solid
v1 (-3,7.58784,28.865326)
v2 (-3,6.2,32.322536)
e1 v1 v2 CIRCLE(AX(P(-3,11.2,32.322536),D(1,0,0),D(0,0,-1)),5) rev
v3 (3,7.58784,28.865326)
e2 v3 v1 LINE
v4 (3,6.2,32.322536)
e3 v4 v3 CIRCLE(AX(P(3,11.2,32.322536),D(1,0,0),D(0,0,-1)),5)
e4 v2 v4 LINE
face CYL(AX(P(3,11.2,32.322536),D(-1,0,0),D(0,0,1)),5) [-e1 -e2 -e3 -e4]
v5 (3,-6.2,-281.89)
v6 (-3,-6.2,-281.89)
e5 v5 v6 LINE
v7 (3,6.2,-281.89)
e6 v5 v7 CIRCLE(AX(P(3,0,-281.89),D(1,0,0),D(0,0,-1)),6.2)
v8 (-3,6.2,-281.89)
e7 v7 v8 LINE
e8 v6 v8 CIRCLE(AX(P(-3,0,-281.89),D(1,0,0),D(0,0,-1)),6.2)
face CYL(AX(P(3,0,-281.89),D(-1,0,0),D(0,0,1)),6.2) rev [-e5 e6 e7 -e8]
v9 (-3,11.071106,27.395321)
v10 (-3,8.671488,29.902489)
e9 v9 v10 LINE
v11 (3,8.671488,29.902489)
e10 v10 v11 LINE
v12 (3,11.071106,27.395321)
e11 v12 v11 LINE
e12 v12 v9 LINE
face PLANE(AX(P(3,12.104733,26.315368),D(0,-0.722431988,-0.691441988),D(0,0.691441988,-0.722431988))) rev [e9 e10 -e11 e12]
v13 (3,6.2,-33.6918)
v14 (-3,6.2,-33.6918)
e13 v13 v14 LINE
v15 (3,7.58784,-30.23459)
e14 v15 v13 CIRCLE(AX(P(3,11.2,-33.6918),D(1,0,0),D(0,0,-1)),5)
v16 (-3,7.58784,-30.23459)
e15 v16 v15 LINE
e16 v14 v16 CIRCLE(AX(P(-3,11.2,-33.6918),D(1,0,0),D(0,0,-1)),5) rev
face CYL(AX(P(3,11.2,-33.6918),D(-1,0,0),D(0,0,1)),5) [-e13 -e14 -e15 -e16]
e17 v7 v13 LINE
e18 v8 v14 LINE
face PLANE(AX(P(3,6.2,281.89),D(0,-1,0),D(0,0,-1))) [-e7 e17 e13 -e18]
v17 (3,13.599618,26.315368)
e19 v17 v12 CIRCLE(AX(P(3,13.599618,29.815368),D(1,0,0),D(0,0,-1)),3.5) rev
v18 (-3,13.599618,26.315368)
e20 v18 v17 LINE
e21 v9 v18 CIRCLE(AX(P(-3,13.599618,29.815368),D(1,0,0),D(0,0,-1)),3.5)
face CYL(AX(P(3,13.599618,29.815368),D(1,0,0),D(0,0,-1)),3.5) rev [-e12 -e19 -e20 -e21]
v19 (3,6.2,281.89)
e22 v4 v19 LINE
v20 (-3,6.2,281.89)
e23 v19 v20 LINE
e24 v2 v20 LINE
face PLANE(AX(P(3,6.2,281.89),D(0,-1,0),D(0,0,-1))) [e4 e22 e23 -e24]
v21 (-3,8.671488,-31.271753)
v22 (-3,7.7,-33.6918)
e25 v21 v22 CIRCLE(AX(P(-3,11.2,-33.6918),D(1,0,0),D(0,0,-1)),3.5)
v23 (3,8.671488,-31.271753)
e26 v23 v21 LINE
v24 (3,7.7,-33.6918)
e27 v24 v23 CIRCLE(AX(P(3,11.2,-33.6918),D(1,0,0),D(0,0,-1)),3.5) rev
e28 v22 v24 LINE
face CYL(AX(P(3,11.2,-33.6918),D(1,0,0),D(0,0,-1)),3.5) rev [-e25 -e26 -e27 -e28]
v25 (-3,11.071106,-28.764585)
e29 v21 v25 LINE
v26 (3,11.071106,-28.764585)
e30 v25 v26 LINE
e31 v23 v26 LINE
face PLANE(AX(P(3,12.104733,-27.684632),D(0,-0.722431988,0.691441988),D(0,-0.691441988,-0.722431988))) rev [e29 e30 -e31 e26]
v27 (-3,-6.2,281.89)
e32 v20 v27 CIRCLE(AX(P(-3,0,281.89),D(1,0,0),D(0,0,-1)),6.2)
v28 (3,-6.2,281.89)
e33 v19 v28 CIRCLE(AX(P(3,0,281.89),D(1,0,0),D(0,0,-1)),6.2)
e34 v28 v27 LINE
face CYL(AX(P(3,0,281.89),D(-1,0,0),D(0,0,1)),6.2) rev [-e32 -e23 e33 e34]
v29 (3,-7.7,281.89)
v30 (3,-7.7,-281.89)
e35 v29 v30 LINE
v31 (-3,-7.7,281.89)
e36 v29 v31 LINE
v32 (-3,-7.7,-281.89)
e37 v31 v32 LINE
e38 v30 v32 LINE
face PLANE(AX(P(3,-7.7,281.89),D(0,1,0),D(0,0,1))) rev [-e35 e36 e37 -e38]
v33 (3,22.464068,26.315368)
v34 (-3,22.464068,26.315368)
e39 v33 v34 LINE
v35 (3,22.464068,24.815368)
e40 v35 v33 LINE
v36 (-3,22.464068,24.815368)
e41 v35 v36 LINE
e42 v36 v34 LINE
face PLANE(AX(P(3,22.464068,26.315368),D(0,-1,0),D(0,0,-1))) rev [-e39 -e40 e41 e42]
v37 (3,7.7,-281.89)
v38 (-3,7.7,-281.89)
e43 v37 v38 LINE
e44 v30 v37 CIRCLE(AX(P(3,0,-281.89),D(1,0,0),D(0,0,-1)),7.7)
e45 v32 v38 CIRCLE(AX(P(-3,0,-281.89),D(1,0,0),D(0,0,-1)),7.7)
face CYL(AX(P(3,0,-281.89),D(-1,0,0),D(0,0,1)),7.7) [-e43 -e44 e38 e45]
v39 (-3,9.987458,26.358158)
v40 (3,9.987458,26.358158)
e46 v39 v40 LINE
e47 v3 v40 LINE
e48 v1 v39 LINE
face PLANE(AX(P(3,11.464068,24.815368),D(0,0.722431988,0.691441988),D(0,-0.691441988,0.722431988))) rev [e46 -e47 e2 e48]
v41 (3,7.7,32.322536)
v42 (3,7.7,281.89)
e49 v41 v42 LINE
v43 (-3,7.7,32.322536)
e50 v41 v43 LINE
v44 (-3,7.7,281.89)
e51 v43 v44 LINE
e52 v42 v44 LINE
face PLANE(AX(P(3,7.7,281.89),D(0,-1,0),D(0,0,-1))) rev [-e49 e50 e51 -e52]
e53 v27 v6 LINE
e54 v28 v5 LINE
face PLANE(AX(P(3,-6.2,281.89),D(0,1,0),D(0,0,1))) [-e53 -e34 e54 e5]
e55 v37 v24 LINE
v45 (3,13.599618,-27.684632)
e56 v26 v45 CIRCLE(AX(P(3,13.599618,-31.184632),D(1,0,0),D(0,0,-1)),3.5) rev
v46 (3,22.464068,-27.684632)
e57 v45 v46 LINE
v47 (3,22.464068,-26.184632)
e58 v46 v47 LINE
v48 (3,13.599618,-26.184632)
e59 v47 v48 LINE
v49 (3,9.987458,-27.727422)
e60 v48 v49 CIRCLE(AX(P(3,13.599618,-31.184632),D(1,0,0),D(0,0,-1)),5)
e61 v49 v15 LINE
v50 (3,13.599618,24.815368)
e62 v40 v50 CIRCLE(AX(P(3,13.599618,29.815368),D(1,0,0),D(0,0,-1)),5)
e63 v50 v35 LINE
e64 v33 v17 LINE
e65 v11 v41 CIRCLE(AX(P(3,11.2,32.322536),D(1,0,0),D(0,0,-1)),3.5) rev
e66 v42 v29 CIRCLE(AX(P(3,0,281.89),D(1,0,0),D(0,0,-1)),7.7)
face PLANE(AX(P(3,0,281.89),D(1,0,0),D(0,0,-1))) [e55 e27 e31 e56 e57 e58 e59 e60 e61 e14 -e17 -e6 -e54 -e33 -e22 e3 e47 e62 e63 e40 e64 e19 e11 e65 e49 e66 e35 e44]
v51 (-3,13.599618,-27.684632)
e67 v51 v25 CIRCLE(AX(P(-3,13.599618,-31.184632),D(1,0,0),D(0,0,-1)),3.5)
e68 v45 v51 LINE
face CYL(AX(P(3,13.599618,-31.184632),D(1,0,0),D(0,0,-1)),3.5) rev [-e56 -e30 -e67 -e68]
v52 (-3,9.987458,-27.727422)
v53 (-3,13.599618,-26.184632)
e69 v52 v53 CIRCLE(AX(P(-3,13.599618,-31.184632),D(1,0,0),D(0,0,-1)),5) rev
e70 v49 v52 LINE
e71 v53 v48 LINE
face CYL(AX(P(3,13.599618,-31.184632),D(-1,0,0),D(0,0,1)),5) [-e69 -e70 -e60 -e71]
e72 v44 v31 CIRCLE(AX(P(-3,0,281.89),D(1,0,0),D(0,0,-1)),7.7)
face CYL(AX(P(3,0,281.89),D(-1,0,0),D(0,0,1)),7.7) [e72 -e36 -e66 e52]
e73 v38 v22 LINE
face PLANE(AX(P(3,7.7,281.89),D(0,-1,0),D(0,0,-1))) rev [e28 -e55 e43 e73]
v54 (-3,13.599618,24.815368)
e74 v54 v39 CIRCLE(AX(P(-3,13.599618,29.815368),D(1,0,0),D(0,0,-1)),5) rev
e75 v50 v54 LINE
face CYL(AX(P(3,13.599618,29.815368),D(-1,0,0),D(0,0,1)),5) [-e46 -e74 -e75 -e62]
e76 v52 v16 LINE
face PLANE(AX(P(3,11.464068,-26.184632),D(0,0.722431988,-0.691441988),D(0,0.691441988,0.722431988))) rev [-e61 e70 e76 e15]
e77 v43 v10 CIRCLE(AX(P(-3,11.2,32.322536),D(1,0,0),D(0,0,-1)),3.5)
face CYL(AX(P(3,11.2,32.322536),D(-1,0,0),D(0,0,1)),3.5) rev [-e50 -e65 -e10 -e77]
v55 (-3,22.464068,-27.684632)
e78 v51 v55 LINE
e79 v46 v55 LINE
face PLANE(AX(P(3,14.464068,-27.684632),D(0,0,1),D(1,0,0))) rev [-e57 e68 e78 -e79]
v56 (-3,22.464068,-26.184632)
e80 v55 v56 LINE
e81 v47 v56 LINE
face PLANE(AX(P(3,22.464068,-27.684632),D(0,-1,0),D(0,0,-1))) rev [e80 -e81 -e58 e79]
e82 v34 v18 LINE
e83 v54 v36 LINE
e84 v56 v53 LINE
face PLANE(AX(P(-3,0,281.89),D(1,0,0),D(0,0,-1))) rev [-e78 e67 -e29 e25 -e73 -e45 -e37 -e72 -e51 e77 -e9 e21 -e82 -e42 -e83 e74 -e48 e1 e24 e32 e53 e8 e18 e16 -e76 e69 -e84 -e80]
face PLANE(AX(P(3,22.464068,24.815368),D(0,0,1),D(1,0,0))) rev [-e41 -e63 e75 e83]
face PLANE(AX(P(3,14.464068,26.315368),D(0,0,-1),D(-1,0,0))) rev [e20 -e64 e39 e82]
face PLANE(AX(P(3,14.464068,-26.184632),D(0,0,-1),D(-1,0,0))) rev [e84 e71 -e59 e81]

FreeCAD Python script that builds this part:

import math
import FreeCAD as App
import Part
import Sketcher

V = App.Vector


def edges_at(feature, points):
    """Names of the edges that pass closest to the given points."""
    edges = feature.Shape.Edges
    near = lambda p: min(range(len(edges)), key=lambda i: edges[i].distToShape(Part.Vertex(*p))[0])
    return sorted({f"Edge{near(p) + 1}" for p in points})


def add_polygon(sketch, points):
    """Adds a closed chain of lines whose ends are joined by coincident constraints."""
    first, n = sketch.GeometryCount, len(points)
    for a, b in zip(points, points[1:] + points[:1]):
        sketch.addGeometry(Part.LineSegment(App.Vector(*a, 0), App.Vector(*b, 0)), False)
    for i in range(n):
        sketch.addConstraint(Sketcher.Constraint("Coincident", first + i, 2, first + (i + 1) % n, 1))

doc = App.newDocument("Part")
body = doc.addObject("PartDesign::Body", "Body")

# Sketch on YZ plane
sketch1 = body.newObject("Sketcher::SketchObject", "Sketch")
sketch1.AttachmentSupport = (doc.getObject("YZ_Plane"), [""])
sketch1.MapMode = "FlatFace"
sketch1.addGeometry(Part.LineSegment(V(7.7, -281.89, 0), V(7.7, 281.89, 0)), False)
sketch1.addGeometry(Part.ArcOfCircle(Part.Circle(V(0, 281.89, 0), V(0, 0, 1), 7.7), math.radians(0), math.radians(180)), False)
sketch1.addGeometry(Part.LineSegment(V(-7.7, 281.89, 0), V(-7.7, -281.89, 0)), False)
sketch1.addGeometry(Part.ArcOfCircle(Part.Circle(V(0, -281.89, 0), V(0, 0, 1), 7.7), math.radians(180), math.radians(360)), False)
sketch1.addGeometry(Part.LineSegment(V(6.2, 281.89, 0), V(6.2, -281.89, 0)), False)
sketch1.addGeometry(Part.ArcOfCircle(Part.Circle(V(0, -281.89, 0), V(0, 0, 1), 6.2), math.radians(180), math.radians(360)), False)
sketch1.addGeometry(Part.LineSegment(V(-6.2, -281.89, 0), V(-6.2, 281.89, 0)), False)
sketch1.addGeometry(Part.ArcOfCircle(Part.Circle(V(0, 281.89, 0), V(0, 0, 1), 6.2), math.radians(0), math.radians(180)), False)
sketch1.addConstraint(Sketcher.Constraint("Tangent", 0, 2, 1, 1))
sketch1.addConstraint(Sketcher.Constraint("Tangent", 1, 2, 2, 1))
sketch1.addConstraint(Sketcher.Constraint("Tangent", 2, 2, 3, 1))
sketch1.addConstraint(Sketcher.Constraint("Tangent", 3, 2, 0, 1))
sketch1.addConstraint(Sketcher.Constraint("Tangent", 4, 2, 5, 2))
sketch1.addConstraint(Sketcher.Constraint("Tangent", 5, 1, 6, 1))
sketch1.addConstraint(Sketcher.Constraint("Tangent", 6, 2, 7, 2))
sketch1.addConstraint(Sketcher.Constraint("Tangent", 7, 1, 4, 1))
sketch1.addConstraint(Sketcher.Constraint("Vertical", 0))
sketch1.addConstraint(Sketcher.Constraint("Vertical", 2))
sketch1.addConstraint(Sketcher.Constraint("Vertical", 4))
sketch1.addConstraint(Sketcher.Constraint("Vertical", 6))
sketch1.addConstraint(Sketcher.Constraint("Coincident", 5, 3, 3, 3))
sketch1.addConstraint(Sketcher.Constraint("Symmetric", 1, 3, 3, 3, -1, 1))
sketch1.addConstraint(Sketcher.Constraint("Horizontal", 7, 3, 0, 2))
sketch1.addConstraint(Sketcher.Constraint("Radius", 1, 7.7))
sketch1.addConstraint(Sketcher.Constraint("Radius", 5, 6.2))
sketch1.addConstraint(Sketcher.Constraint("DistanceY", 0, 1, 0, 2, 563.78))
pad1 = body.newObject("PartDesign::Pad", "Pad")
pad1.Profile = sketch1
pad1.Length = 6
pad1.Midplane = True

# Sketch on YZ plane
sketch2 = body.newObject("Sketcher::SketchObject", "Sketch001")
sketch2.AttachmentSupport = (doc.getObject("YZ_Plane"), [""])
sketch2.MapMode = "FlatFace"
add_polygon(sketch2, [(11.464068, -26.184632), (6.2, -31.684632), (6.2, -33.854011), (12.104733, -27.684632), (22.464068, -27.684632), (22.464068, -26.184632)])  # lines 0-5
add_polygon(sketch2, [(11.464068, 24.815368), (22.464068, 24.815368), (22.464068, 26.315368), (12.104733, 26.315368), (6.2, 32.484747), (6.2, 30.315368)])  # lines 6-11
sketch2.addConstraint(Sketcher.Constraint("Vertical", 1))
sketch2.addConstraint(Sketcher.Constraint("Horizontal", 3))
sketch2.addConstraint(Sketcher.Constraint("Vertical", 4))
sketch2.addConstraint(Sketcher.Constraint("Horizontal", 5))
sketch2.addConstraint(Sketcher.Constraint("Horizontal", 6))
sketch2.addConstraint(Sketcher.Constraint("Vertical", 7))
sketch2.addConstraint(Sketcher.Constraint("Horizontal", 8))
sketch2.addConstraint(Sketcher.Constraint("Vertical", 10))
sketch2.addConstraint(Sketcher.Constraint("Parallel", 0, 2))
sketch2.addConstraint(Sketcher.Constraint("Parallel", 9, 11))
sketch2.addConstraint(Sketcher.Constraint("Vertical", 4, 2, 6, 2))
sketch2.addConstraint(Sketcher.Constraint("Vertical", 2, 2, 8, 2))
sketch2.addConstraint(Sketcher.Constraint("Vertical", 1, 2, 9, 2))
sketch2.addConstraint(Sketcher.Constraint("Vertical", 5, 2, 11, 2))
sketch2.addConstraint(Sketcher.Constraint("Equal", 4, 7))
sketch2.addConstraint(Sketcher.Constraint("Equal", 1, 10))
sketch2.addConstraint(Sketcher.Constraint("DistanceX", 5, 2, 5, 1, 11.0))
sketch2.addConstraint(Sketcher.Constraint("DistanceY", 4, 1, 4, 2, 1.5))
sketch2.addConstraint(Sketcher.Constraint("DistanceY", 0, 2, 2, 2, 4.0))
sketch2.addConstraint(Sketcher.Constraint("DistanceY", 4, 2, 6, 2, 51.0))
sketch2.addConstraint(Sketcher.Constraint("DistanceX", -1, 1, 0, 2, 6.2))
sketch2.addConstraint(Sketcher.Constraint("DistanceY", 1, 2, 1, 1, 2.169379))
sketch2.addConstraint(Sketcher.Constraint("DistanceX", 3, 1, 3, 2, 10.359335))
sketch2.addConstraint(Sketcher.Constraint("DistanceY", 0, 2, -1, 1, 31.684632))
pad2 = body.newObject("PartDesign::Pad", "Pad001")
pad2.Profile = sketch2
pad2.Length = 6
pad2.Midplane = True

# Sketch on YZ plane
sketch3 = body.newObject("Sketcher::SketchObject", "Sketch002")
sketch3.AttachmentSupport = (doc.getObject("YZ_Plane"), [""])
sketch3.MapMode = "FlatFace"
sketch3.AttachmentOffset = App.Placement(V(0, 0, 3), App.Rotation())
add_polygon(sketch3, [(7.7, 28.748139), (6.2, 30.315368), (6.2, -31.684632), (7.7, -30.117403)])  # lines 0-3
sketch3.addConstraint(Sketcher.Constraint("Vertical", 1))
sketch3.addConstraint(Sketcher.Constraint("Vertical", 3))
sketch3.addConstraint(Sketcher.Constraint("Equal", 0, 2))
sketch3.addConstraint(Sketcher.Constraint("DistanceY", 1, 2, 1, 1, 62.0))
sketch3.addConstraint(Sketcher.Constraint("DistanceX", -1, 1, 0, 2, 6.2))
sketch3.addConstraint(Sketcher.Constraint("DistanceX", -1, 1, 2, 2, 7.7))
sketch3.addConstraint(Sketcher.Constraint("DistanceY", 3, 1, 3, 2, 58.865542))
sketch3.addConstraint(Sketcher.Constraint("DistanceY", -1, 1, 0, 2, 30.315368))
pocket1 = body.newObject("PartDesign::Pocket", "Pocket")
pocket1.Profile = sketch3
pocket1.Type = "ThroughAll"
doc.recompute()

fillet = body.newObject("PartDesign::Fillet", "Fillet")
fillet.Base = (pocket1, edges_at(pocket1, [
    (0, 11.464, -26.185),
    (0, 6.2, -31.685),
    (0, 6.2, 30.315),
    (0, 11.464, 24.815),
]))
fillet.Radius = 5
doc.recompute()

fillet2 = body.newObject("PartDesign::Fillet", "Fillet001")
fillet2.Base = (fillet, edges_at(fillet, [
    (0, 12.105, 26.315),
    (0, 7.7, 30.918),
    (0, 7.7, -32.287),
    (0, 12.105, -27.685),
]))
fillet2.Radius = 3.5

doc.recompute()
